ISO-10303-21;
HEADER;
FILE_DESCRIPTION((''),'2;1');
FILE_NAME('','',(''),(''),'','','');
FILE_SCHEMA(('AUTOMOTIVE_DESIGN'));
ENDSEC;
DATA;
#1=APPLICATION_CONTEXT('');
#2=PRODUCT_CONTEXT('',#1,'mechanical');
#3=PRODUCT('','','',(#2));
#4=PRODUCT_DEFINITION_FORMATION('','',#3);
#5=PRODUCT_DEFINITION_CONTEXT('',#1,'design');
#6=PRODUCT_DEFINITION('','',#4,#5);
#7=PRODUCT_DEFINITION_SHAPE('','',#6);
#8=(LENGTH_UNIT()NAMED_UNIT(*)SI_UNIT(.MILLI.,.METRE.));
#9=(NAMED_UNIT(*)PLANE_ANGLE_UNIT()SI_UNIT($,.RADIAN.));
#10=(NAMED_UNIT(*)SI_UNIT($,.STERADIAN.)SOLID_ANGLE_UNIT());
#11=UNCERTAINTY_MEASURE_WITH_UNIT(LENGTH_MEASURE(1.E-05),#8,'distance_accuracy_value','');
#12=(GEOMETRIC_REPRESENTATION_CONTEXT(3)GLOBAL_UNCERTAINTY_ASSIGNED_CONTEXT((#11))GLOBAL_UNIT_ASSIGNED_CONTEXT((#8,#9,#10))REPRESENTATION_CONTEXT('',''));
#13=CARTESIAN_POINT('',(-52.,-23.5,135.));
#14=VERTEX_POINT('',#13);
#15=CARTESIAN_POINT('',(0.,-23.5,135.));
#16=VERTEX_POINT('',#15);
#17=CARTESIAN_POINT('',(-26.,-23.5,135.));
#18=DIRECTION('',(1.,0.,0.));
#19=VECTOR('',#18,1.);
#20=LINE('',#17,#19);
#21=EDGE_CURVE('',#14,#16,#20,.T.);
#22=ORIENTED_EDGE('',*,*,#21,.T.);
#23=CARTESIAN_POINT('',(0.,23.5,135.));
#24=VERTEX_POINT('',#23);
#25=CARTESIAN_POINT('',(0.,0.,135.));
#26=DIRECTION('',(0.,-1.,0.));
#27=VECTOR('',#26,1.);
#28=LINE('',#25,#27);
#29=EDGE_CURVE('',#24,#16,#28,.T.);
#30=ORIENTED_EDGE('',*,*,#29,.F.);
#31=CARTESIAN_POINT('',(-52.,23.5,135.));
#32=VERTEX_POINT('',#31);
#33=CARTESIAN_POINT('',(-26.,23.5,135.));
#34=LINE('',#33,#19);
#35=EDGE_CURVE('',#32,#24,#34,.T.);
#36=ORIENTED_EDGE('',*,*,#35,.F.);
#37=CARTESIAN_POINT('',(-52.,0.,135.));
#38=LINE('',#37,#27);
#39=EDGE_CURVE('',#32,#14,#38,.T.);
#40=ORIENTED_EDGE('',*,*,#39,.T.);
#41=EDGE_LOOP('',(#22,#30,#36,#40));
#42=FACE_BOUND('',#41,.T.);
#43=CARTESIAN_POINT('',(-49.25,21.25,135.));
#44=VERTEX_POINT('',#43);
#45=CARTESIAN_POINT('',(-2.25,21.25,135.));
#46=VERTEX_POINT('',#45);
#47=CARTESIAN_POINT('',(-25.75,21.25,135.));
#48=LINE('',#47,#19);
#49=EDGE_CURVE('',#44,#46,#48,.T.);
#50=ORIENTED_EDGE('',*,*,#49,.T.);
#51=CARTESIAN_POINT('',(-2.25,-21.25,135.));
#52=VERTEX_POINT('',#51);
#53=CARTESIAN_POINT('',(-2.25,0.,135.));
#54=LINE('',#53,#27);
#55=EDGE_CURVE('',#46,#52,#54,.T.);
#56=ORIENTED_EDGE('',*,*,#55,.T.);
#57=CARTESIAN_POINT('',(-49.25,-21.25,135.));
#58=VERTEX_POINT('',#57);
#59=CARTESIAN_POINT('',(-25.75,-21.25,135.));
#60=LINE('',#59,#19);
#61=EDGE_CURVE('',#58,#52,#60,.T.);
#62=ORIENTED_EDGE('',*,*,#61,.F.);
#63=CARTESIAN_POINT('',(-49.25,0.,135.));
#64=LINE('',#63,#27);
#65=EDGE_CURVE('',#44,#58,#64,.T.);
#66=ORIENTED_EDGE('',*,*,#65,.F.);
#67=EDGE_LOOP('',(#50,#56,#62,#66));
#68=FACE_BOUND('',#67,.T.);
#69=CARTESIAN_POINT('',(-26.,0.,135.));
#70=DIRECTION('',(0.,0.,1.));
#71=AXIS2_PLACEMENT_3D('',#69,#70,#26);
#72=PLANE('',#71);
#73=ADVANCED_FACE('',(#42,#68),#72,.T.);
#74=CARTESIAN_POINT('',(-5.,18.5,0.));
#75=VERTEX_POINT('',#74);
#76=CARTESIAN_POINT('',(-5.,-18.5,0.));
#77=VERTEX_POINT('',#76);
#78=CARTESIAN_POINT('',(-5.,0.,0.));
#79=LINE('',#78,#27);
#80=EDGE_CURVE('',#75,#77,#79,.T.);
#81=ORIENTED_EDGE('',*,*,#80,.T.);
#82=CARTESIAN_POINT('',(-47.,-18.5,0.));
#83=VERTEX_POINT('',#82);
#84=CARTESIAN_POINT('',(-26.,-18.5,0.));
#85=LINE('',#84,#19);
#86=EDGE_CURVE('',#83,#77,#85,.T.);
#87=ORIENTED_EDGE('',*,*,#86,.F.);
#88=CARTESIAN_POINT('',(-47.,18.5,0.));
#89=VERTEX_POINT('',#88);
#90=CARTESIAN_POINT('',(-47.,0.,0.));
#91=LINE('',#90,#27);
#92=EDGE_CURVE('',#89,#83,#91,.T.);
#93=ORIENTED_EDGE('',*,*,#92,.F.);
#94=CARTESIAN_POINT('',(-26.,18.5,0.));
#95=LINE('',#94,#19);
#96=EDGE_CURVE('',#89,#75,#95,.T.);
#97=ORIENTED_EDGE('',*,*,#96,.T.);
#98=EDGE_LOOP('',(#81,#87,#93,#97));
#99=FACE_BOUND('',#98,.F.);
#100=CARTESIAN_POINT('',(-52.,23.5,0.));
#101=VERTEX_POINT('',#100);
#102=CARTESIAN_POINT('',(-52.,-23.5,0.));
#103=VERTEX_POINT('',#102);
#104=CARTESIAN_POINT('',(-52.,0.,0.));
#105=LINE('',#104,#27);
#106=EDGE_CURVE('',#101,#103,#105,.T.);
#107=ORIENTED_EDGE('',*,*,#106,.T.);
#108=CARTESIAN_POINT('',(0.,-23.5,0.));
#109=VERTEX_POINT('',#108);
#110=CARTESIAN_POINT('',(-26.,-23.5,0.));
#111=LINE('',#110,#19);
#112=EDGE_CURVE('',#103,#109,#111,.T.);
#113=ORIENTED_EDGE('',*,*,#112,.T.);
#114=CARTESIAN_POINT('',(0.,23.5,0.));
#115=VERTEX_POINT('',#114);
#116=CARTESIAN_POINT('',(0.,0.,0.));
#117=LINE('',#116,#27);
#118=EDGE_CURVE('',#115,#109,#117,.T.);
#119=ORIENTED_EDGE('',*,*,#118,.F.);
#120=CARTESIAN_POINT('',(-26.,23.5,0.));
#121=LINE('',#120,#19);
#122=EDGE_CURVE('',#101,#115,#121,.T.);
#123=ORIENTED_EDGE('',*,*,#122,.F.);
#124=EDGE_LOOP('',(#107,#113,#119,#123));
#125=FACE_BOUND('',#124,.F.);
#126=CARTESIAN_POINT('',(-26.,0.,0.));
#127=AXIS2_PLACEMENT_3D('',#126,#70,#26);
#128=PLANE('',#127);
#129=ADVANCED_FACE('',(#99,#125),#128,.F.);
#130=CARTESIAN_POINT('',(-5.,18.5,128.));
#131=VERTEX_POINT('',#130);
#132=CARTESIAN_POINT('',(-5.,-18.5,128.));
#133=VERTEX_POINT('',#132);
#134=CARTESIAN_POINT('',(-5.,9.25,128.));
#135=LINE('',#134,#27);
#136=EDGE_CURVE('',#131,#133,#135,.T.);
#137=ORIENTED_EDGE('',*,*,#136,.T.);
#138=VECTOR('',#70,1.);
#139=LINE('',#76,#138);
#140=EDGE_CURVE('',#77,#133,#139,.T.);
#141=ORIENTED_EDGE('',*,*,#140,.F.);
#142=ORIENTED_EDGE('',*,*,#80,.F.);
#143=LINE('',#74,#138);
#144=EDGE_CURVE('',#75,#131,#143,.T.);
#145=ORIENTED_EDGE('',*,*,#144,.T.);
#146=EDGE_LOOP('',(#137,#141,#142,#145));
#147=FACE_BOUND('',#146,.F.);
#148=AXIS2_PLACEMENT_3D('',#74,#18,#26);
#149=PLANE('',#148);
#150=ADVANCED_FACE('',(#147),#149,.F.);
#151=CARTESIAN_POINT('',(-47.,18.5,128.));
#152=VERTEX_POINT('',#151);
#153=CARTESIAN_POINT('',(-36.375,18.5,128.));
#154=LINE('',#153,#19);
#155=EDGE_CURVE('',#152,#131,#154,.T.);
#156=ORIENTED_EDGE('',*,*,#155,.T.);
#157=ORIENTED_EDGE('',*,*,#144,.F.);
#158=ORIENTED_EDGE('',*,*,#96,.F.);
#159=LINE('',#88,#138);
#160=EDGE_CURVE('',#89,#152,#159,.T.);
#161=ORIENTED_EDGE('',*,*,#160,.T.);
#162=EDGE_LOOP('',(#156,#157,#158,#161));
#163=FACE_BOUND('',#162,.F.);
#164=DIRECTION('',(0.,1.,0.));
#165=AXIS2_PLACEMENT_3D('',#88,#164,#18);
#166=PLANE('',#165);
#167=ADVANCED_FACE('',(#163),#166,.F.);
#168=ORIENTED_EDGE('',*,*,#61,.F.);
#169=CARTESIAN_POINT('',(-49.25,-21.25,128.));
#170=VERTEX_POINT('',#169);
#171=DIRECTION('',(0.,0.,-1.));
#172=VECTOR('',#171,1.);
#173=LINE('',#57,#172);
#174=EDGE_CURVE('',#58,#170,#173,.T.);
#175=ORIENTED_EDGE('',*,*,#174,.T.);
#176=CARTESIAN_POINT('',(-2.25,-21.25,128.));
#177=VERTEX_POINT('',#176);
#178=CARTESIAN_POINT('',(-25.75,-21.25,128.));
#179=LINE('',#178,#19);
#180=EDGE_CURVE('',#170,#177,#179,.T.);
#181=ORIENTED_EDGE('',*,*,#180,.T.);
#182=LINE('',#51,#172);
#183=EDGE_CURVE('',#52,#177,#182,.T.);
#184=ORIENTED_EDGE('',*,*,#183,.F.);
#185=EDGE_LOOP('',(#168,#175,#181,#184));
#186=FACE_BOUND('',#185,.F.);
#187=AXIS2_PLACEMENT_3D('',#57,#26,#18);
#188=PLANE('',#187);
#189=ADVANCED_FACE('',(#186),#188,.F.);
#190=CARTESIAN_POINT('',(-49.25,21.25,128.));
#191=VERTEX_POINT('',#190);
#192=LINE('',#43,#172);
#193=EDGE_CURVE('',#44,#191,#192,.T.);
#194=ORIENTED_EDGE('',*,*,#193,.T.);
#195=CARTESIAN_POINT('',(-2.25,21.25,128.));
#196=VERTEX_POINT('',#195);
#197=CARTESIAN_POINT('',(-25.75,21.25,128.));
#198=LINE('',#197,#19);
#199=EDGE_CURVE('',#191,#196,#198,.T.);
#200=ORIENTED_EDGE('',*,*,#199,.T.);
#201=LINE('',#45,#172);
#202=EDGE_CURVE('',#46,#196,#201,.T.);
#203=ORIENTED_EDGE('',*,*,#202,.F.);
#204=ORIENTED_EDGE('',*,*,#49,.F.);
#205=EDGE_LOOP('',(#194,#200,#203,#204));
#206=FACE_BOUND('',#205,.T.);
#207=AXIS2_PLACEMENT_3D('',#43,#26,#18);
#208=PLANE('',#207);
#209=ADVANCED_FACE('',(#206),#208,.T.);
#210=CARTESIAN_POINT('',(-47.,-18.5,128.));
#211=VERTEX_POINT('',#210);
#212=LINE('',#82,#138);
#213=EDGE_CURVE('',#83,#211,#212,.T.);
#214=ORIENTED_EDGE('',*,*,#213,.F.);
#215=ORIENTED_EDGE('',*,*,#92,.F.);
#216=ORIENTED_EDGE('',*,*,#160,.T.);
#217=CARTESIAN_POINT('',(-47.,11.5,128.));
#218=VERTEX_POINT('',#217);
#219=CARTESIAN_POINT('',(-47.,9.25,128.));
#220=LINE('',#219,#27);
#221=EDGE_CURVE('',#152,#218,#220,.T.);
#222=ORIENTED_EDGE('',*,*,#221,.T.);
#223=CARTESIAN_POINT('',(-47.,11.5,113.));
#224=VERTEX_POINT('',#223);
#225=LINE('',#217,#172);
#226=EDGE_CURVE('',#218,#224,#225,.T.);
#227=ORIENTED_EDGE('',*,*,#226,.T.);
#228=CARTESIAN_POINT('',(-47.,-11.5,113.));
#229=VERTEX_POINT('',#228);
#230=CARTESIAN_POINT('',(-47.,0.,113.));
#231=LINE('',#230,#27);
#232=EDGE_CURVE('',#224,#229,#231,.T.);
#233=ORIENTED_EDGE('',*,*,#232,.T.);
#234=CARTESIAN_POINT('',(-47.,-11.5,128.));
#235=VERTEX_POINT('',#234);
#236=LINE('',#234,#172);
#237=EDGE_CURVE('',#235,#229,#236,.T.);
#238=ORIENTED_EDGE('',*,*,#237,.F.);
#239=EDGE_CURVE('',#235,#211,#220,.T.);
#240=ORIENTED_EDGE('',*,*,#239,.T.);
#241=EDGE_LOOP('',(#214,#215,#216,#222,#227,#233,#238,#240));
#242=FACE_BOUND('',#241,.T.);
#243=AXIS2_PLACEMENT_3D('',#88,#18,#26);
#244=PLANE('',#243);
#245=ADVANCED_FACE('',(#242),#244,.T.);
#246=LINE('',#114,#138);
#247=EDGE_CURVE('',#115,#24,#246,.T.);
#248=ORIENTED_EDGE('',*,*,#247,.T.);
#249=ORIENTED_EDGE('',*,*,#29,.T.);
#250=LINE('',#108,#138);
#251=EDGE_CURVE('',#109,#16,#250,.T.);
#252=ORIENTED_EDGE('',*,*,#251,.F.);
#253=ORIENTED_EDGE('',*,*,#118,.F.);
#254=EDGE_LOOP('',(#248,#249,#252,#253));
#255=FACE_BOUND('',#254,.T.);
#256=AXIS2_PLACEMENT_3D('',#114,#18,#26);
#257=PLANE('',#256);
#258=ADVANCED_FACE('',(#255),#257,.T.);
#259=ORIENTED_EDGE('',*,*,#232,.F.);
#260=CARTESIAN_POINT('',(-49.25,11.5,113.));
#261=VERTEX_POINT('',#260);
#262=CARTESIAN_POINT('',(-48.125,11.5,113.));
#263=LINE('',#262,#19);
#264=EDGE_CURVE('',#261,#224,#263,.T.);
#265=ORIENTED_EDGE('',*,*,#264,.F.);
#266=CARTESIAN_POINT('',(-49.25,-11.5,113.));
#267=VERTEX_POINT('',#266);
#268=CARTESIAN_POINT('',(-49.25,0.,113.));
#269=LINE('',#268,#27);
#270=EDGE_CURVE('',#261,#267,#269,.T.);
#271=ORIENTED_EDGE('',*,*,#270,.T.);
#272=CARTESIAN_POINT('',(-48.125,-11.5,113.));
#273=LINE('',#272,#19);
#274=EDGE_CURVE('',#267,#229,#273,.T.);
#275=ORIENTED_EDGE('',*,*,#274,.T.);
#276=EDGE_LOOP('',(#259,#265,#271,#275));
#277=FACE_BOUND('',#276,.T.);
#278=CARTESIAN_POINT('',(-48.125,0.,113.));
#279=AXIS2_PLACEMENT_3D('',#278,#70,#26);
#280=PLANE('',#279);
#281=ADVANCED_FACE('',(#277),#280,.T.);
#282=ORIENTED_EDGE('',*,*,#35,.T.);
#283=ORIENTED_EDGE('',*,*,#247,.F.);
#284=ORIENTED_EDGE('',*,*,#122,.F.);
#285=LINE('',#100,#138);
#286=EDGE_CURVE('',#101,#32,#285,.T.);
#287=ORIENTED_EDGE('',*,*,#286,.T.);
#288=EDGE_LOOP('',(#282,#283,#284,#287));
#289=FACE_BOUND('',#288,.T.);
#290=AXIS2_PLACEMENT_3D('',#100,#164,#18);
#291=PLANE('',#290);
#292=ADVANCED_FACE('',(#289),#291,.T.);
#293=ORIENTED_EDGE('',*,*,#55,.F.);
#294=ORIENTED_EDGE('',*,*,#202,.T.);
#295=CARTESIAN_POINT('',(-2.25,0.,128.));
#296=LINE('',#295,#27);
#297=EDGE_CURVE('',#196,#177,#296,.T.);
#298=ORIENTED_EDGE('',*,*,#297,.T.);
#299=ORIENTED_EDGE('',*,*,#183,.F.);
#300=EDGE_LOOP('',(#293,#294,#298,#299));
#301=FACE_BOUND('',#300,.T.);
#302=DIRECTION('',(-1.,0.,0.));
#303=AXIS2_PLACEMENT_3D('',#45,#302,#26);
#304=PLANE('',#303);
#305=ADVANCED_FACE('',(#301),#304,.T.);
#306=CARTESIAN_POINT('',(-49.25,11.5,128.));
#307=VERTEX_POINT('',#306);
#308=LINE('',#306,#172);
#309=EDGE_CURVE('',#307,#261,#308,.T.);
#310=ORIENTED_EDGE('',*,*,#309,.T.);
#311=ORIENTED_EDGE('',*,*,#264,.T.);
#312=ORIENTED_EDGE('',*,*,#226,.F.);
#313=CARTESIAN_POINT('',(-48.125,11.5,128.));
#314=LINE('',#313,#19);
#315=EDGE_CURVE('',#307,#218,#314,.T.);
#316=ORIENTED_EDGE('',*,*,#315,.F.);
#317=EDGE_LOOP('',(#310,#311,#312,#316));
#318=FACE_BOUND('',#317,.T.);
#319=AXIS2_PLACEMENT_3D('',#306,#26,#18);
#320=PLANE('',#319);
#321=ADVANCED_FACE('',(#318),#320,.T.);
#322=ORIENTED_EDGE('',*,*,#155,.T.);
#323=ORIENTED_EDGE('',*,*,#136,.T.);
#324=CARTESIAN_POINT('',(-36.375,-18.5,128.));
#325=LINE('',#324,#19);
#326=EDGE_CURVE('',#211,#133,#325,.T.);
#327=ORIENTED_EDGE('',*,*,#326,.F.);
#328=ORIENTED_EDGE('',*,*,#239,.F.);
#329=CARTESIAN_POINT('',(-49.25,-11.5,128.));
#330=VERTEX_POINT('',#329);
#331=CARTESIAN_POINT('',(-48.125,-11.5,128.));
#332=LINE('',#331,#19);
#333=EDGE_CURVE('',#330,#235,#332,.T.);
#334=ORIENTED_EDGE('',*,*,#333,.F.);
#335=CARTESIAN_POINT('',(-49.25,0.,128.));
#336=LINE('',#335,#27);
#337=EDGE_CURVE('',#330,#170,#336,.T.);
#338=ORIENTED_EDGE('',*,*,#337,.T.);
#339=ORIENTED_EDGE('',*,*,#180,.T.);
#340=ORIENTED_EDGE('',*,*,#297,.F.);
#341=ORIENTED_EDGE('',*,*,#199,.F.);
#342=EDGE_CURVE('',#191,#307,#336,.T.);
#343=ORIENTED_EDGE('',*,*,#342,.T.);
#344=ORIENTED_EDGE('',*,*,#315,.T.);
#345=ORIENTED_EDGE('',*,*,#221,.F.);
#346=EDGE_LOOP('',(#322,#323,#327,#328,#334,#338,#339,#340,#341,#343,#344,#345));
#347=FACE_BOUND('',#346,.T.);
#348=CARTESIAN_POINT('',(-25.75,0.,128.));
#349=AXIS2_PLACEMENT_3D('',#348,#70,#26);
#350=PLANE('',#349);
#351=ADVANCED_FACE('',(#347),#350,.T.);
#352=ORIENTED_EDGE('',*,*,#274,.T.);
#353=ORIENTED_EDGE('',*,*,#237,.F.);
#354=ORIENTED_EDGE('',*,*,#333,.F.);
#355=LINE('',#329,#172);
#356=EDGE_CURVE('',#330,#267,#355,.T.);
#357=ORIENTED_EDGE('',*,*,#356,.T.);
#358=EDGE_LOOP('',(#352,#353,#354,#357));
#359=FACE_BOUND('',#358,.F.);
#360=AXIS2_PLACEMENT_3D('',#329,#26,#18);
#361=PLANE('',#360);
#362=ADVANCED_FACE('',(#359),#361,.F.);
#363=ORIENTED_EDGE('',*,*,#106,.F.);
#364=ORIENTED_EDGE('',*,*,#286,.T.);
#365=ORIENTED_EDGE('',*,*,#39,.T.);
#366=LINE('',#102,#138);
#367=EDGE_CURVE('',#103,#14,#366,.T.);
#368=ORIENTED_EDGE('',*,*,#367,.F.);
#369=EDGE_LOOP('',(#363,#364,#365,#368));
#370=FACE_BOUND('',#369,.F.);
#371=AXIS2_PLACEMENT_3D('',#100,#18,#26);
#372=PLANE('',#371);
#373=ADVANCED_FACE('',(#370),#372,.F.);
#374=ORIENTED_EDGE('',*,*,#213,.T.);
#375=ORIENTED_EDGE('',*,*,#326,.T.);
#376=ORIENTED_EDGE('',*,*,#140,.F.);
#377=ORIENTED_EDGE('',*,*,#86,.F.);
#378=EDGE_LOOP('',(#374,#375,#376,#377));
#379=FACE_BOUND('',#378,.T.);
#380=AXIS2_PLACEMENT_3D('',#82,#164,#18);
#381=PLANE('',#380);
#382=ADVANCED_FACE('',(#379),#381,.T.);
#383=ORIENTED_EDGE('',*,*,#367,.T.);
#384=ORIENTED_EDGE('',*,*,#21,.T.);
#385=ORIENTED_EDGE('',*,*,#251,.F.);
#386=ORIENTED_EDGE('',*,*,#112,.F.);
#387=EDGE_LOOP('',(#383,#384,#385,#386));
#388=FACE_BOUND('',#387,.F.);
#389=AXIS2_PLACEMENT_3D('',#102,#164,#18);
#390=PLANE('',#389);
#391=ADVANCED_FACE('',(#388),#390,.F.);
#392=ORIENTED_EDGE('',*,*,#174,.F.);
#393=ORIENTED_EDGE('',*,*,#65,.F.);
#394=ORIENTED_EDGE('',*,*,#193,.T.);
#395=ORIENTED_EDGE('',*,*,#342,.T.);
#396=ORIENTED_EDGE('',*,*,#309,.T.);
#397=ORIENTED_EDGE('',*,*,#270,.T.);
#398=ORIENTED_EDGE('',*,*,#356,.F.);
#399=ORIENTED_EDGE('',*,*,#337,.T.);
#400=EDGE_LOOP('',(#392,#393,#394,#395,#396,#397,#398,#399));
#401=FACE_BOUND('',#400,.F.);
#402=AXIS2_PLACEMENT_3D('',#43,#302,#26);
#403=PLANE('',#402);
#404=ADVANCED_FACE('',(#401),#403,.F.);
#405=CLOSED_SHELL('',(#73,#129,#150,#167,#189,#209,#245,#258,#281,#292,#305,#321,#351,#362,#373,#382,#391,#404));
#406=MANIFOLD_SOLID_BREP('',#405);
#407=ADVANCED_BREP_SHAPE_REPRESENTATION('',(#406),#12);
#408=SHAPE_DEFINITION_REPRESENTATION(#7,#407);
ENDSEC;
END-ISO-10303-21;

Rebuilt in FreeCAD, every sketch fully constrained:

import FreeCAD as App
import Part
import Sketcher
from FreeCAD import Vector
Q = App.Units.Quantity

doc = App.newDocument("Part")
body = doc.addObject("PartDesign::Body", "Body")

# Sketch on XY plane
sketch1 = doc.addObject("Sketcher::SketchObject", "Sketch")
body.addObject(sketch1)
sketch1.AttachmentSupport = (doc.XY_Plane, [""])
sketch1.MapMode = "FlatFace"
sketch1.addGeometry(Part.LineSegment(Vector(-24, 0, 0), Vector(-24, -52, 0)), False)
sketch1.addGeometry(Part.LineSegment(Vector(-24, -52, 0), Vector(24, -52, 0)), False)
sketch1.addGeometry(Part.LineSegment(Vector(24, -52, 0), Vector(24, 0, 0)), False)
sketch1.addGeometry(Part.LineSegment(Vector(24, 0, 0), Vector(-24, 0, 0)), False)
sketch1.addGeometry(Part.LineSegment(Vector(18, -47, 0), Vector(-18, -47, 0)), False)
sketch1.addGeometry(Part.LineSegment(Vector(-18, -47, 0), Vector(-18, -5, 0)), False)
sketch1.addGeometry(Part.LineSegment(Vector(-18, -5, 0), Vector(18, -5, 0)), False)
sketch1.addGeometry(Part.LineSegment(Vector(18, -5, 0), Vector(18, -47, 0)), False)
sketch1.addConstraint(Sketcher.Constraint("Coincident", 0, 2, 1, 1))
sketch1.addConstraint(Sketcher.Constraint("Coincident", 1, 2, 2, 1))
sketch1.addConstraint(Sketcher.Constraint("Coincident", 2, 2, 3, 1))
sketch1.addConstraint(Sketcher.Constraint("Coincident", 3, 2, 0, 1))
sketch1.addConstraint(Sketcher.Constraint("Coincident", 4, 2, 5, 1))
sketch1.addConstraint(Sketcher.Constraint("Coincident", 5, 2, 6, 1))
sketch1.addConstraint(Sketcher.Constraint("Coincident", 6, 2, 7, 1))
sketch1.addConstraint(Sketcher.Constraint("Coincident", 7, 2, 4, 1))
sketch1.addConstraint(Sketcher.Constraint("Vertical", 0))
sketch1.addConstraint(Sketcher.Constraint("Horizontal", 1))
sketch1.addConstraint(Sketcher.Constraint("Vertical", 2))
sketch1.addConstraint(Sketcher.Constraint("Horizontal", 3))
sketch1.addConstraint(Sketcher.Constraint("Horizontal", 4))
sketch1.addConstraint(Sketcher.Constraint("Vertical", 5))
sketch1.addConstraint(Sketcher.Constraint("Horizontal", 6))
sketch1.addConstraint(Sketcher.Constraint("Vertical", 7))
sketch1.addConstraint(Sketcher.Constraint("Symmetric", 2, 2, 3, 2, -1, 1))
sketch1.addConstraint(Sketcher.Constraint("DistanceX", 1, 1, 1, 2, Q("47 mm")))
sketch1.addConstraint(Sketcher.Constraint("DistanceX", 4, 2, 4, 1, Q("37 mm")))
sketch1.addConstraint(Sketcher.Constraint("DistanceY", 0, 2, 0, 1, Q("52 mm")))
sketch1.addConstraint(Sketcher.Constraint("DistanceY", 5, 1, 5, 2, Q("42 mm")))
sketch1.addConstraint(Sketcher.Constraint("DistanceY", 4, 2, -1, 1, Q("47 mm")))
sketch1.addConstraint(Sketcher.Constraint("DistanceX", 0, 2, 4, 2, Q("5 mm")))
pad1 = doc.addObject("PartDesign::Pad", "Pad")
body.addObject(pad1)
pad1.Profile = sketch1
pad1.Length = 135

# Sketch on XY plane
sketch2 = doc.addObject("Sketcher::SketchObject", "Sketch001")
body.addObject(sketch2)
sketch2.AttachmentSupport = (doc.XY_Plane, [""])
sketch2.MapMode = "FlatFace"
sketch2.AttachmentOffset = App.Placement(Vector(0, 0, 135), App.Rotation())
sketch2.addGeometry(Part.LineSegment(Vector(-21, -2, 0), Vector(-21, -49, 0)), False)
sketch2.addGeometry(Part.LineSegment(Vector(-21, -49, 0), Vector(21, -49, 0)), False)
sketch2.addGeometry(Part.LineSegment(Vector(21, -49, 0), Vector(21, -2, 0)), False)
sketch2.addGeometry(Part.LineSegment(Vector(21, -2, 0), Vector(-21, -2, 0)), False)
sketch2.addConstraint(Sketcher.Constraint("Coincident", 0, 2, 1, 1))
sketch2.addConstraint(Sketcher.Constraint("Coincident", 1, 2, 2, 1))
sketch2.addConstraint(Sketcher.Constraint("Coincident", 2, 2, 3, 1))
sketch2.addConstraint(Sketcher.Constraint("Coincident", 3, 2, 0, 1))
sketch2.addConstraint(Sketcher.Constraint("Vertical", 0))
sketch2.addConstraint(Sketcher.Constraint("Horizontal", 1))
sketch2.addConstraint(Sketcher.Constraint("Vertical", 2))
sketch2.addConstraint(Sketcher.Constraint("Horizontal", 3))
sketch2.addConstraint(Sketcher.Constraint("DistanceY", 0, 2, 0, 1, Q("47 mm")))
sketch2.addConstraint(Sketcher.Constraint("DistanceX", 1, 1, 1, 2, Q("42.5 mm")))
sketch2.addConstraint(Sketcher.Constraint("DistanceX", 0, 2, -1, 1, Q("21.25 mm")))
sketch2.addConstraint(Sketcher.Constraint("DistanceY", 0, 2, -1, 1, Q("49.25 mm")))
pocket1 = doc.addObject("PartDesign::Pocket", "Pocket")
body.addObject(pocket1)
pocket1.Profile = sketch2
pocket1.Length = 7

# Sketch on XY plane
sketch3 = doc.addObject("Sketcher::SketchObject", "Sketch002")
body.addObject(sketch3)
sketch3.AttachmentSupport = (doc.XY_Plane, [""])
sketch3.MapMode = "FlatFace"
sketch3.AttachmentOffset = App.Placement(Vector(0, 0, 128), App.Rotation())
sketch3.addGeometry(Part.LineSegment(Vector(-11.5, -47, 0), Vector(-11.5, -49.2, 0)), False)
sketch3.addGeometry(Part.LineSegment(Vector(-11.5, -49.2, 0), Vector(11.5, -49.2, 0)), False)
sketch3.addGeometry(Part.LineSegment(Vector(11.5, -49.2, 0), Vector(11.5, -47, 0)), False)
sketch3.addGeometry(Part.LineSegment(Vector(11.5, -47, 0), Vector(-11.5, -47, 0)), False)
sketch3.addConstraint(Sketcher.Constraint("Coincident", 0, 2, 1, 1))
sketch3.addConstraint(Sketcher.Constraint("Coincident", 1, 2, 2, 1))
sketch3.addConstraint(Sketcher.Constraint("Coincident", 2, 2, 3, 1))
sketch3.addConstraint(Sketcher.Constraint("Coincident", 3, 2, 0, 1))
sketch3.addConstraint(Sketcher.Constraint("Vertical", 0))
sketch3.addConstraint(Sketcher.Constraint("Horizontal", 1))
sketch3.addConstraint(Sketcher.Constraint("Vertical", 2))
sketch3.addConstraint(Sketcher.Constraint("Horizontal", 3))
sketch3.addConstraint(Sketcher.Constraint("DistanceX", 1, 1, 1, 2, Q("23 mm")))
sketch3.addConstraint(Sketcher.Constraint("DistanceY", 2, 2, -1, 1, Q("47 mm")))
sketch3.addConstraint(Sketcher.Constraint("DistanceY", 0, 2, 0, 1, Q("2.25 mm")))
sketch3.addConstraint(Sketcher.Constraint("DistanceX", 0, 2, -1, 1, Q("11.5 mm")))
pocket2 = doc.addObject("PartDesign::Pocket", "Pocket001")
body.addObject(pocket2)
pocket2.Profile = sketch3
pocket2.Length = 15
body2 = doc.addObject("PartDesign::Body", "Body001")
doc.recompute()

body.Placement = App.Placement(Vector(0, 0, 0), App.Rotation(Vector(0, 0, 1), 270))
boolean = doc.addObject("PartDesign::Boolean", "Boolean")
body2.addObject(boolean)
boolean.Type = "Fuse"
boolean.addObjects([body])

doc.recompute()
